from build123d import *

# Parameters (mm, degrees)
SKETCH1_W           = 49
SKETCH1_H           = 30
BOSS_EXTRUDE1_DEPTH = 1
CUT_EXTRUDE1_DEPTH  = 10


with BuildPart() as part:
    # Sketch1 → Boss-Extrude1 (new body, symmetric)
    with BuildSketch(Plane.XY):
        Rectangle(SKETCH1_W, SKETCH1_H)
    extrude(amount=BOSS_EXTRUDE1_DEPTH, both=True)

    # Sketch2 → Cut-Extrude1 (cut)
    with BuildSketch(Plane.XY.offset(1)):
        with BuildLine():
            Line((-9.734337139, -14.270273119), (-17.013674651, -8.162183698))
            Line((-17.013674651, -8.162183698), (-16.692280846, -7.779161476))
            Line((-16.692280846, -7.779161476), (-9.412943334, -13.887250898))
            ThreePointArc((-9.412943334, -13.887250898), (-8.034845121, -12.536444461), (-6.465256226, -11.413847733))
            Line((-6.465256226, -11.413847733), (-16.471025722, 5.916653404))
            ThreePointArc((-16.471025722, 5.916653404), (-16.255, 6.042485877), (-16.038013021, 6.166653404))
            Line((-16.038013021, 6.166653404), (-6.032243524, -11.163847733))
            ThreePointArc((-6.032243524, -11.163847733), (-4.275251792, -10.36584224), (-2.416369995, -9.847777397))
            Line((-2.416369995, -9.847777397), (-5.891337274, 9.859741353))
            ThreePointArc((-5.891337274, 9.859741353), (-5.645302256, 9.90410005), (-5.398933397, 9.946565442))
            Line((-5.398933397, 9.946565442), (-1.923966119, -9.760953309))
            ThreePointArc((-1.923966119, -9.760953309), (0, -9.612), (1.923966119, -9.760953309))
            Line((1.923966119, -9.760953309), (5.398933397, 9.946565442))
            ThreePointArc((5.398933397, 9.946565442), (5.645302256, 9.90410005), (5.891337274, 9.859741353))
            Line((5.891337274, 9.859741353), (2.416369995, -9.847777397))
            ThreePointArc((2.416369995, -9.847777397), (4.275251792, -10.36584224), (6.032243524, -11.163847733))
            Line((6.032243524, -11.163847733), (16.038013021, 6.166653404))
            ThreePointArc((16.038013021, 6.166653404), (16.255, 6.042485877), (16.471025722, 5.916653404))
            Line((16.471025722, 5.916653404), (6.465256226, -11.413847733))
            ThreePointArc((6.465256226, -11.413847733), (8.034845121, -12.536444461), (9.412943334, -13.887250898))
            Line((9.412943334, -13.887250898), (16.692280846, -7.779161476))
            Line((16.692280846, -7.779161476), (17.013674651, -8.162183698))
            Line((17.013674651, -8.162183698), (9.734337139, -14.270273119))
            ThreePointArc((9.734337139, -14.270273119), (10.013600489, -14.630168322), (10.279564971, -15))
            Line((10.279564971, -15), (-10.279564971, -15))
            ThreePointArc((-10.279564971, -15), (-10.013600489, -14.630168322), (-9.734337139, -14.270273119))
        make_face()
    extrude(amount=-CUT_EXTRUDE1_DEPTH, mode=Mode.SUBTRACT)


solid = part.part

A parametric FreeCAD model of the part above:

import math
import FreeCAD as App
import Part
import Sketcher
Q = App.Units.Quantity

doc = App.newDocument("Part")
body = doc.addObject("PartDesign::Body", "Body")

# Sketch on XY plane
sketch1 = body.newObject("Sketcher::SketchObject", "Sketch")
sketch1.AttachmentSupport = (doc.getObject("XY_Plane"), [""])
sketch1.MapMode = "FlatFace"
sketch1.addGeometry(Part.LineSegment(App.Vector(-24.5, 15, 0), App.Vector(-24.5, -15, 0)), False)
sketch1.addGeometry(Part.LineSegment(App.Vector(-24.5, -15, 0), App.Vector(24.5, -15, 0)), False)
sketch1.addGeometry(Part.LineSegment(App.Vector(24.5, -15, 0), App.Vector(24.5, 15, 0)), False)
sketch1.addGeometry(Part.LineSegment(App.Vector(24.5, 15, 0), App.Vector(-24.5, 15, 0)), False)
sketch1.addConstraint(Sketcher.Constraint("Coincident", 0, 2, 1, 1))
sketch1.addConstraint(Sketcher.Constraint("Coincident", 1, 2, 2, 1))
sketch1.addConstraint(Sketcher.Constraint("Coincident", 2, 2, 3, 1))
sketch1.addConstraint(Sketcher.Constraint("Coincident", 3, 2, 0, 1))
sketch1.addConstraint(Sketcher.Constraint("Vertical", 0))
sketch1.addConstraint(Sketcher.Constraint("Horizontal", 1))
sketch1.addConstraint(Sketcher.Constraint("Vertical", 2))
sketch1.addConstraint(Sketcher.Constraint("Horizontal", 3))
sketch1.addConstraint(Sketcher.Constraint("Symmetric", 0, 2, 2, 2, -1, 1))
sketch1.addConstraint(Sketcher.Constraint("DistanceX", 1, 1, 1, 2, Q("49 mm")))
sketch1.addConstraint(Sketcher.Constraint("DistanceY", 0, 2, 0, 1, Q("30 mm")))
pad1 = body.newObject("PartDesign::Pad", "Pad")
pad1.Profile = sketch1
pad1.Length = 2
pad1.Midplane = True

# Sketch on XY plane
sketch2 = body.newObject("Sketcher::SketchObject", "Sketch001")
sketch2.AttachmentSupport = (doc.getObject("XY_Plane"), [""])
sketch2.MapMode = "FlatFace"
sketch2.AttachmentOffset = App.Placement(App.Vector(0, 0, 1), App.Rotation())
sketch2.addGeometry(Part.LineSegment(App.Vector(-17.013675, -8.162184, 0), App.Vector(-9.734337, -14.270273, 0)), False)
sketch2.addGeometry(Part.ArcOfCircle(Part.Circle(App.Vector(0, -22.112, 0), App.Vector(0, 0, 1), 12.499999), math.radians(141.145992), math.radians(145.322265)), False)
sketch2.addGeometry(Part.LineSegment(App.Vector(-10.279565, -15, 0), App.Vector(10.279565, -15, 0)), False)
sketch2.addGeometry(Part.ArcOfCircle(Part.Circle(App.Vector(0, -22.112, 0), App.Vector(0, 0, 1), 12.499999), math.radians(34.677735), math.radians(38.854008)), False)
sketch2.addGeometry(Part.LineSegment(App.Vector(9.734337, -14.270273, 0), App.Vector(17.013675, -8.162184, 0)), False)
sketch2.addGeometry(Part.LineSegment(App.Vector(17.013675, -8.162184, 0), App.Vector(16.692281, -7.779161, 0)), False)
sketch2.addGeometry(Part.LineSegment(App.Vector(16.692281, -7.779161, 0), App.Vector(9.412943, -13.887251, 0)), False)
sketch2.addGeometry(Part.ArcOfCircle(Part.Circle(App.Vector(0, -22.112, 0), App.Vector(0, 0, 1), 12.5), math.radians(41.145992), math.radians(58.854008)), False)
sketch2.addGeometry(Part.LineSegment(App.Vector(6.465256, -11.413848, 0), App.Vector(16.471026, 5.916653, 0)), False)
sketch2.addGeometry(Part.ArcOfCircle(Part.Circle(App.Vector(0.000002, -22.111997, 0), App.Vector(0, 0, 1), 32.509996), math.radians(59.559394), math.radians(60.440606)), False)
sketch2.addGeometry(Part.LineSegment(App.Vector(16.038013, 6.166653, 0), App.Vector(6.032244, -11.163848, 0)), False)
sketch2.addGeometry(Part.ArcOfCircle(Part.Circle(App.Vector(0, -22.112, 0), App.Vector(0, 0, 1), 12.5), math.radians(61.145992), math.radians(78.854008)), False)
sketch2.addGeometry(Part.LineSegment(App.Vector(2.41637, -9.847777, 0), App.Vector(5.891337, 9.859741, 0)), False)
sketch2.addGeometry(Part.ArcOfCircle(Part.Circle(App.Vector(-0.000004, -22.112025, 0), App.Vector(0, 0, 1), 32.510025), math.radians(79.559395), math.radians(80.440605)), False)
sketch2.addGeometry(Part.LineSegment(App.Vector(5.398933, 9.946565, 0), App.Vector(1.923966, -9.760953, 0)), False)
sketch2.addGeometry(Part.ArcOfCircle(Part.Circle(App.Vector(0, -22.112, 0), App.Vector(0, 0, 1), 12.5), math.radians(81.145992), math.radians(98.854008)), False)
sketch2.addGeometry(Part.LineSegment(App.Vector(-1.923966, -9.760953, 0), App.Vector(-5.398933, 9.946565, 0)), False)
sketch2.addGeometry(Part.ArcOfCircle(Part.Circle(App.Vector(0.000004, -22.112025, 0), App.Vector(0, 0, 1), 32.510025), math.radians(99.559395), math.radians(100.440605)), False)
sketch2.addGeometry(Part.LineSegment(App.Vector(-5.891337, 9.859741, 0), App.Vector(-2.41637, -9.847777, 0)), False)
sketch2.addGeometry(Part.ArcOfCircle(Part.Circle(App.Vector(0, -22.112, 0), App.Vector(0, 0, 1), 12.5), math.radians(101.145992), math.radians(118.854008)), False)
sketch2.addGeometry(Part.LineSegment(App.Vector(-6.032244, -11.163848, 0), App.Vector(-16.038013, 6.166653, 0)), False)
sketch2.addGeometry(Part.ArcOfCircle(Part.Circle(App.Vector(-0.000002, -22.111997, 0), App.Vector(0, 0, 1), 32.509996), math.radians(119.559394), math.radians(120.440606)), False)
sketch2.addGeometry(Part.LineSegment(App.Vector(-16.471026, 5.916653, 0), App.Vector(-6.465256, -11.413848, 0)), False)
sketch2.addGeometry(Part.ArcOfCircle(Part.Circle(App.Vector(0, -22.112, 0), App.Vector(0, 0, 1), 12.5), math.radians(121.145992), math.radians(138.854008)), False)
sketch2.addGeometry(Part.LineSegment(App.Vector(-9.412943, -13.887251, 0), App.Vector(-16.692281, -7.779161, 0)), False)
sketch2.addGeometry(Part.LineSegment(App.Vector(-16.692281, -7.779161, 0), App.Vector(-17.013675, -8.162184, 0)), False)
sketch2.addConstraint(Sketcher.Constraint("Coincident", 0, 2, 1, 1))
sketch2.addConstraint(Sketcher.Constraint("Coincident", 1, 2, 2, 1))
sketch2.addConstraint(Sketcher.Constraint("Coincident", 2, 2, 3, 1))
sketch2.addConstraint(Sketcher.Constraint("Coincident", 3, 2, 4, 1))
sketch2.addConstraint(Sketcher.Constraint("Coincident", 4, 2, 5, 1))
sketch2.addConstraint(Sketcher.Constraint("Coincident", 5, 2, 6, 1))
sketch2.addConstraint(Sketcher.Constraint("Coincident", 6, 2, 7, 1))
sketch2.addConstraint(Sketcher.Constraint("Coincident", 7, 2, 8, 1))
sketch2.addConstraint(Sketcher.Constraint("Coincident", 8, 2, 9, 1))
sketch2.addConstraint(Sketcher.Constraint("Coincident", 9, 2, 10, 1))
sketch2.addConstraint(Sketcher.Constraint("Coincident", 10, 2, 11, 1))
sketch2.addConstraint(Sketcher.Constraint("Coincident", 11, 2, 12, 1))
sketch2.addConstraint(Sketcher.Constraint("Coincident", 12, 2, 13, 1))
sketch2.addConstraint(Sketcher.Constraint("Coincident", 13, 2, 14, 1))
sketch2.addConstraint(Sketcher.Constraint("Coincident", 14, 2, 15, 1))
sketch2.addConstraint(Sketcher.Constraint("Coincident", 15, 2, 16, 1))
sketch2.addConstraint(Sketcher.Constraint("Coincident", 16, 2, 17, 1))
sketch2.addConstraint(Sketcher.Constraint("Coincident", 17, 2, 18, 1))
sketch2.addConstraint(Sketcher.Constraint("Coincident", 18, 2, 19, 1))
sketch2.addConstraint(Sketcher.Constraint("Coincident", 19, 2, 20, 1))
sketch2.addConstraint(Sketcher.Constraint("Coincident", 20, 2, 21, 1))
sketch2.addConstraint(Sketcher.Constraint("Coincident", 21, 2, 22, 1))
sketch2.addConstraint(Sketcher.Constraint("Coincident", 22, 2, 23, 1))
sketch2.addConstraint(Sketcher.Constraint("Coincident", 23, 2, 24, 1))
sketch2.addConstraint(Sketcher.Constraint("Coincident", 24, 2, 25, 1))
sketch2.addConstraint(Sketcher.Constraint("Coincident", 25, 2, 0, 1))
sketch2.addConstraint(Sketcher.Constraint("Horizontal", 2))
sketch2.addConstraint(Sketcher.Constraint("Coincident", 3, 3, 1, 3))
sketch2.addConstraint(Sketcher.Constraint("Coincident", 7, 3, 1, 3))
sketch2.addConstraint(Sketcher.Constraint("Coincident", 9, 3, 1, 3))
sketch2.addConstraint(Sketcher.Constraint("Coincident", 11, 3, 1, 3))
sketch2.addConstraint(Sketcher.Constraint("Coincident", 15, 3, 1, 3))
sketch2.addConstraint(Sketcher.Constraint("Coincident", 17, 3, 13, 3))
sketch2.addConstraint(Sketcher.Constraint("Coincident", 19, 3, 1, 3))
sketch2.addConstraint(Sketcher.Constraint("Coincident", 21, 3, 1, 3))
sketch2.addConstraint(Sketcher.Constraint("Coincident", 23, 3, 1, 3))
sketch2.addConstraint(Sketcher.Constraint("Equal", 1, 3))
sketch2.addConstraint(Sketcher.Constraint("Equal", 3, 7))
sketch2.addConstraint(Sketcher.Constraint("Equal", 7, 11))
sketch2.addConstraint(Sketcher.Constraint("Equal", 11, 15))
sketch2.addConstraint(Sketcher.Constraint("Equal", 13, 17))
sketch2.addConstraint(Sketcher.Constraint("Equal", 15, 19))
sketch2.addConstraint(Sketcher.Constraint("Equal", 9, 21))
sketch2.addConstraint(Sketcher.Constraint("Equal", 19, 23))
sketch2.addConstraint(Sketcher.Constraint("Symmetric", 0, 2, 3, 2, -2))
sketch2.addConstraint(Sketcher.Constraint("Symmetric", 13, 2, 16, 2, -2))
sketch2.addConstraint(Sketcher.Constraint("Symmetric", 5, 2, 24, 2, -2))
sketch2.addConstraint(Sketcher.Constraint("Symmetric", 4, 2, 25, 2, -2))
sketch2.addConstraint(Sketcher.Constraint("Perpendicular", 4, 5))
sketch2.addConstraint(Sketcher.Constraint("Perpendicular", 5, 6))
sketch2.addConstraint(Sketcher.Constraint("Parallel", 8, 10))
sketch2.addConstraint(Sketcher.Constraint("Parallel", 12, 14))
sketch2.addConstraint(Sketcher.Constraint("Parallel", 16, 18))
sketch2.addConstraint(Sketcher.Constraint("Parallel", 20, 22))
sketch2.addConstraint(Sketcher.Constraint("Parallel", 0, 24))
sketch2.addConstraint(Sketcher.Constraint("Horizontal", 14, 2, 15, 2))
sketch2.addConstraint(Sketcher.Constraint("Horizontal", 12, 2, 17, 2))
sketch2.addConstraint(Sketcher.Constraint("Horizontal", 10, 2, 19, 2))
sketch2.addConstraint(Sketcher.Constraint("Horizontal", 9, 2, 20, 2))
sketch2.addConstraint(Sketcher.Constraint("Horizontal", 8, 2, 21, 2))
sketch2.addConstraint(Sketcher.Constraint("Equal", 4, 6))
sketch2.addConstraint(Sketcher.Constraint("Equal", 8, 10))
sketch2.addConstraint(Sketcher.Constraint("Equal", 10, 12))
sketch2.addConstraint(Sketcher.Constraint("Equal", 12, 14))
sketch2.addConstraint(Sketcher.Constraint("Radius", 1, Q("12.499999 mm")))
sketch2.addConstraint(Sketcher.Constraint("Angle", 0, Q("-40 deg")))
sketch2.addConstraint(Sketcher.Constraint("Angle", 8, Q("60 deg")))
sketch2.addConstraint(Sketcher.Constraint("Angle", 12, Q("80 deg")))
sketch2.addConstraint(Sketcher.Constraint("DistanceY", 1, 2, -1, 1, Q("15 mm")))
sketch2.addConstraint(Sketcher.Constraint("Distance", 5, Q("0.5 mm")))
sketch2.addConstraint(Sketcher.Constraint("DistanceY", 8, 2, 9, 2, Q("0.25 mm")))
sketch2.addConstraint(Sketcher.Constraint("DistanceY", 1, 3, -1, 1, Q("22.112 mm")))
sketch2.addConstraint(Sketcher.Constraint("Radius", 9, Q("32.509996 mm")))
sketch2.addConstraint(Sketcher.Constraint("Radius", 13, Q("32.510025 mm")))
sketch2.addConstraint(Sketcher.Constraint("Distance", 0, Q("9.5025 mm")))
sketch2.addConstraint(Sketcher.Constraint("DistanceX", 16, 2, 14, 2, Q("7.3229 mm")))
pocket1 = body.newObject("PartDesign::Pocket", "Pocket")
pocket1.Profile = sketch2
pocket1.Length = 10

doc.recompute()
